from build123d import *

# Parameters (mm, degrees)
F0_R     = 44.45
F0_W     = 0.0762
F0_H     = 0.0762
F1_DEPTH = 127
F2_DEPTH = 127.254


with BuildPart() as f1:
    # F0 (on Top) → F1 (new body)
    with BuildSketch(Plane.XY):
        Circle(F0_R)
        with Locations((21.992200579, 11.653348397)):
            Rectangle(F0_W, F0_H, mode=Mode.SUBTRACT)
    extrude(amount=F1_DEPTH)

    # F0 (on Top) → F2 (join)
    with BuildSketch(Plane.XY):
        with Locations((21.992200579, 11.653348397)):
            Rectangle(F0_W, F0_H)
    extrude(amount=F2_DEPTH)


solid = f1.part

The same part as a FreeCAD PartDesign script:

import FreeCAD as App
import Part
import Sketcher
Q = App.Units.Quantity


def add_polygon(sketch, points):
    """Adds a closed chain of lines whose ends are joined by coincident constraints."""
    first, n = sketch.GeometryCount, len(points)
    for a, b in zip(points, points[1:] + points[:1]):
        sketch.addGeometry(Part.LineSegment(App.Vector(*a, 0), App.Vector(*b, 0)), False)
    for i in range(n):
        sketch.addConstraint(Sketcher.Constraint("Coincident", first + i, 2, first + (i + 1) % n, 1))

doc = App.newDocument("Part")
body = doc.addObject("PartDesign::Body", "Body")

# Sketch on XY plane
sketch1 = body.newObject("Sketcher::SketchObject", "Sketch")
sketch1.AttachmentSupport = (doc.getObject("XY_Plane"), [""])
sketch1.MapMode = "FlatFace"
sketch1.addGeometry(Part.Circle(App.Vector(0, 0, 0), App.Vector(0, 0, 1), 44.45), False)  # 0
add_polygon(sketch1, [(22.03, 11.62), (21.95, 11.62), (21.95, 11.69), (22.03, 11.69)])  # lines 1-4
sketch1.addConstraint([
    Sketcher.Constraint("Horizontal", 1),
    Sketcher.Constraint("Vertical", 2),
    Sketcher.Constraint("Horizontal", 3),
    Sketcher.Constraint("Vertical", 4),
    Sketcher.Constraint("Coincident", 0, 3, -1, 1),
    Sketcher.Constraint("Equal", 3, 2),
    Sketcher.Constraint("Diameter", 0, Q("3.5 in")),
    Sketcher.Constraint("DistanceX", 1, 2, 1, 1, Q("0.003 in")),
    Sketcher.Constraint("DistanceX", -1, 1, 1, 2, 21.954101),
    Sketcher.Constraint("DistanceY", -1, 1, 1, 2, 11.615248),
])
pad1 = body.newObject("PartDesign::Pad", "Pad")
pad1.Profile = sketch1
pad1.Length = Q("5 in")

# Sketch on XY plane
sketch2 = body.newObject("Sketcher::SketchObject", "Sketch001")
sketch2.AttachmentSupport = (doc.getObject("XY_Plane"), [""])
sketch2.MapMode = "FlatFace"
add_polygon(sketch2, [(21.95, 11.69), (21.95, 11.62), (22.03, 11.62), (22.03, 11.69)])  # lines 0-3
sketch2.addConstraint([
    Sketcher.Constraint("Vertical", 0),
    Sketcher.Constraint("Horizontal", 1),
    Sketcher.Constraint("Vertical", 2),
    Sketcher.Constraint("Horizontal", 3),
    Sketcher.Constraint("Equal", 3, 0),
    Sketcher.Constraint("DistanceX", 1, 1, 1, 2, Q("0.003 in")),
    Sketcher.Constraint("DistanceX", -1, 1, 0, 2, 21.954101),
    Sketcher.Constraint("DistanceY", -1, 1, 0, 2, 11.615248),
])
pad2 = body.newObject("PartDesign::Pad", "Pad001")
pad2.Profile = sketch2
pad2.Length = Q("5.01 in")

doc.recompute()
